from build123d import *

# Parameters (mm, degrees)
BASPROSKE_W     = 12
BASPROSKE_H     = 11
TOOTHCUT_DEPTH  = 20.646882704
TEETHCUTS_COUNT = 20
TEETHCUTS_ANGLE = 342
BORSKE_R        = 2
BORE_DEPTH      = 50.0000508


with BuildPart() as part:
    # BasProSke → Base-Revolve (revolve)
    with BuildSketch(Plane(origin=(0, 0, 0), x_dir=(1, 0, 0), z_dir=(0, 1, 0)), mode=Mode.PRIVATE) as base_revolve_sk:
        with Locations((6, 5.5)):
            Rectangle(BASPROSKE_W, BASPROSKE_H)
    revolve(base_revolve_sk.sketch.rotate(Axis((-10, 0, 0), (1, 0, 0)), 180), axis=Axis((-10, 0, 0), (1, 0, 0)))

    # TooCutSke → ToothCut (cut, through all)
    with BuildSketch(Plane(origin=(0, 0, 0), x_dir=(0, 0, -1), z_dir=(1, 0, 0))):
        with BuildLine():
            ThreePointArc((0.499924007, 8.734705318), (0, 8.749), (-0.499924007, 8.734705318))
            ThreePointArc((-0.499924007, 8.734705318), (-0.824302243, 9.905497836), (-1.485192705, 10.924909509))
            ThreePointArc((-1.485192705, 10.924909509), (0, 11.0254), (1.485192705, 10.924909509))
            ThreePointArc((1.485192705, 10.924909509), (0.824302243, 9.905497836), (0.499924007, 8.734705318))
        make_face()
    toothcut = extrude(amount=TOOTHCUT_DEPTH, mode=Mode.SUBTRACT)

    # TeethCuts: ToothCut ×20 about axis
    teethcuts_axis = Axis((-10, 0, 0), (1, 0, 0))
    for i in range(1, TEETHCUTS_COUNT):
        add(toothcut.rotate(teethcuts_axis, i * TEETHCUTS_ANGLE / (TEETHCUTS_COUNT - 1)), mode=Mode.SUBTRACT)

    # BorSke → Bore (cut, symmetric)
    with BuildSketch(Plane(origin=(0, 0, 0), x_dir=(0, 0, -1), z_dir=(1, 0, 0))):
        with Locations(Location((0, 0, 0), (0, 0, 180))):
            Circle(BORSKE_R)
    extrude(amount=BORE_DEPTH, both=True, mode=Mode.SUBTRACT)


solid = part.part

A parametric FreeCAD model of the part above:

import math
import FreeCAD as App
import Part
import Sketcher
Q = App.Units.Quantity

doc = App.newDocument("Part")
params = doc.addObject("Spreadsheet::Sheet", "Params")
for row, (alias, value) in enumerate([
    ("sketch1_width", "12 mm"),
    ("sketch1_height", "11 mm"),
    ("revolution_angle", "360 deg"),
    ("sketch2_radius", "4 mm"),
    ("sketch3_diameter", "4 mm"),
    ("pocket2_length", "100.000102 mm"),
], start=1):
    params.set(f"A{row}", alias)
    params.set(f"B{row}", "=" + value)
    params.setAlias(f"B{row}", alias)

body = doc.addObject("PartDesign::Body", "Body")

sketch1 = doc.addObject("Sketcher::SketchObject", "Sketch")
body.addObject(sketch1)
sketch1.AttachmentSupport = (doc.XZ_Plane, [""])
sketch1.MapMode = "FlatFace"
sketch1.addGeometry([
    Part.LineSegment(App.Vector(0, -11, 0), App.Vector(0, 0, 0)),
    Part.LineSegment(App.Vector(0, 0, 0), App.Vector(12, 0, 0)),
    Part.LineSegment(App.Vector(12, 0, 0), App.Vector(12, -11, 0)),
    Part.LineSegment(App.Vector(12, -11, 0), App.Vector(0, -11, 0)),
], False)
sketch1.addConstraint([
    Sketcher.Constraint("Coincident", 0, 2, 1, 1),
    Sketcher.Constraint("Coincident", 1, 2, 2, 1),
    Sketcher.Constraint("Coincident", 2, 2, 3, 1),
    Sketcher.Constraint("Coincident", 3, 2, 0, 1),
    Sketcher.Constraint("Vertical", 0),
    Sketcher.Constraint("Horizontal", 1),
    Sketcher.Constraint("Vertical", 2),
    Sketcher.Constraint("Horizontal", 3),
    Sketcher.Constraint("Coincident", 0, 2, -1, 1),
    Sketcher.Constraint("DistanceX", 1, 1, 1, 2, Q("12 mm")),
    Sketcher.Constraint("DistanceY", 0, 1, 0, 2, Q("11 mm")),
])
sketch1.setExpression("Constraints[9]", "Params.sketch1_width")
sketch1.setExpression("Constraints[10]", "Params.sketch1_height")
revolution = doc.addObject("PartDesign::Revolution", "Revolution")
body.addObject(revolution)
revolution.Profile = sketch1
revolution.ReferenceAxis = (sketch1, ["H_Axis"])
revolution.setExpression("Angle", "Params.revolution_angle")

sketch2 = doc.addObject("Sketcher::SketchObject", "Sketch001")
body.addObject(sketch2)
sketch2.AttachmentSupport = (doc.YZ_Plane, [""])
sketch2.MapMode = "FlatFace"
sketch2.addGeometry([
    Part.ArcOfCircle(Part.Circle(App.Vector(0, 0, 0), App.Vector(0, 0, 1), 8.7), math.radians(-3.28), math.radians(3.28)),
    Part.ArcOfCircle(Part.Circle(App.Vector(8.3, -4.5, 0), App.Vector(0, 0, 1), 4), math.radians(48), math.radians(83)),
    Part.ArcOfCircle(Part.Circle(App.Vector(0, 0, 0), App.Vector(0, 0, 1), 11), math.radians(-7.74), math.radians(7.74)),
    Part.ArcOfCircle(Part.Circle(App.Vector(8.3, 4.5, 0), App.Vector(0, 0, 1), 4), math.radians(-83), math.radians(-48)),
], False)
sketch2.addConstraint([
    Sketcher.Constraint("Coincident", 0, 1, 1, 2),
    Sketcher.Constraint("Coincident", 1, 1, 2, 1),
    Sketcher.Constraint("Coincident", 2, 2, 3, 2),
    Sketcher.Constraint("Coincident", 3, 1, 0, 2),
    Sketcher.Constraint("Coincident", 0, 3, -1, 1),
    Sketcher.Constraint("Coincident", 2, 3, -1, 1),
    Sketcher.Constraint("Equal", 1, 3),
    Sketcher.Constraint("Symmetric", 1, 3, 3, 3, -1),
    Sketcher.Constraint("Radius", 1, Q("4 mm")),
    Sketcher.Constraint("Radius", 0, Q("8.749 mm")),
    Sketcher.Constraint("Radius", 2, Q("11.0254 mm")),
    Sketcher.Constraint("DistanceY", 1, 3, -1, 1, Q("4.47219 mm")),
    Sketcher.Constraint("DistanceX", -1, 1, 1, 1, Q("10.92491 mm")),
])
sketch2.setExpression("Constraints[8]", "Params.sketch2_radius")
pocket1 = doc.addObject("PartDesign::Pocket", "Pocket")
body.addObject(pocket1)
pocket1.Profile = sketch2
pocket1.Type = "ThroughAll"
pocket1.Reversed = True
doc.recompute()

polarpattern = doc.addObject("PartDesign::PolarPattern", "PolarPattern")
body.addObject(polarpattern)
polarpattern.Originals = [pocket1]
polarpattern.Axis = (doc.X_Axis, [""])
polarpattern.Angle = 360
polarpattern.Occurrences = 20
body.Tip = polarpattern

sketch3 = doc.addObject("Sketcher::SketchObject", "Sketch002")
body.addObject(sketch3)
sketch3.AttachmentSupport = (doc.YZ_Plane, [""])
sketch3.MapMode = "FlatFace"
sketch3.addGeometry(Part.Circle(App.Vector(0, 0, 0), App.Vector(0, 0, 1), 2), False)
sketch3.addConstraint([
    Sketcher.Constraint("Coincident", 0, 3, -1, 1),
    Sketcher.Constraint("Diameter", 0, Q("4 mm")),
])
sketch3.setExpression("Constraints[1]", "Params.sketch3_diameter")
pocket2 = doc.addObject("PartDesign::Pocket", "Pocket001")
body.addObject(pocket2)
pocket2.Profile = sketch3
pocket2.setExpression("Length", "Params.pocket2_length")
pocket2.Midplane = True

doc.recompute()
